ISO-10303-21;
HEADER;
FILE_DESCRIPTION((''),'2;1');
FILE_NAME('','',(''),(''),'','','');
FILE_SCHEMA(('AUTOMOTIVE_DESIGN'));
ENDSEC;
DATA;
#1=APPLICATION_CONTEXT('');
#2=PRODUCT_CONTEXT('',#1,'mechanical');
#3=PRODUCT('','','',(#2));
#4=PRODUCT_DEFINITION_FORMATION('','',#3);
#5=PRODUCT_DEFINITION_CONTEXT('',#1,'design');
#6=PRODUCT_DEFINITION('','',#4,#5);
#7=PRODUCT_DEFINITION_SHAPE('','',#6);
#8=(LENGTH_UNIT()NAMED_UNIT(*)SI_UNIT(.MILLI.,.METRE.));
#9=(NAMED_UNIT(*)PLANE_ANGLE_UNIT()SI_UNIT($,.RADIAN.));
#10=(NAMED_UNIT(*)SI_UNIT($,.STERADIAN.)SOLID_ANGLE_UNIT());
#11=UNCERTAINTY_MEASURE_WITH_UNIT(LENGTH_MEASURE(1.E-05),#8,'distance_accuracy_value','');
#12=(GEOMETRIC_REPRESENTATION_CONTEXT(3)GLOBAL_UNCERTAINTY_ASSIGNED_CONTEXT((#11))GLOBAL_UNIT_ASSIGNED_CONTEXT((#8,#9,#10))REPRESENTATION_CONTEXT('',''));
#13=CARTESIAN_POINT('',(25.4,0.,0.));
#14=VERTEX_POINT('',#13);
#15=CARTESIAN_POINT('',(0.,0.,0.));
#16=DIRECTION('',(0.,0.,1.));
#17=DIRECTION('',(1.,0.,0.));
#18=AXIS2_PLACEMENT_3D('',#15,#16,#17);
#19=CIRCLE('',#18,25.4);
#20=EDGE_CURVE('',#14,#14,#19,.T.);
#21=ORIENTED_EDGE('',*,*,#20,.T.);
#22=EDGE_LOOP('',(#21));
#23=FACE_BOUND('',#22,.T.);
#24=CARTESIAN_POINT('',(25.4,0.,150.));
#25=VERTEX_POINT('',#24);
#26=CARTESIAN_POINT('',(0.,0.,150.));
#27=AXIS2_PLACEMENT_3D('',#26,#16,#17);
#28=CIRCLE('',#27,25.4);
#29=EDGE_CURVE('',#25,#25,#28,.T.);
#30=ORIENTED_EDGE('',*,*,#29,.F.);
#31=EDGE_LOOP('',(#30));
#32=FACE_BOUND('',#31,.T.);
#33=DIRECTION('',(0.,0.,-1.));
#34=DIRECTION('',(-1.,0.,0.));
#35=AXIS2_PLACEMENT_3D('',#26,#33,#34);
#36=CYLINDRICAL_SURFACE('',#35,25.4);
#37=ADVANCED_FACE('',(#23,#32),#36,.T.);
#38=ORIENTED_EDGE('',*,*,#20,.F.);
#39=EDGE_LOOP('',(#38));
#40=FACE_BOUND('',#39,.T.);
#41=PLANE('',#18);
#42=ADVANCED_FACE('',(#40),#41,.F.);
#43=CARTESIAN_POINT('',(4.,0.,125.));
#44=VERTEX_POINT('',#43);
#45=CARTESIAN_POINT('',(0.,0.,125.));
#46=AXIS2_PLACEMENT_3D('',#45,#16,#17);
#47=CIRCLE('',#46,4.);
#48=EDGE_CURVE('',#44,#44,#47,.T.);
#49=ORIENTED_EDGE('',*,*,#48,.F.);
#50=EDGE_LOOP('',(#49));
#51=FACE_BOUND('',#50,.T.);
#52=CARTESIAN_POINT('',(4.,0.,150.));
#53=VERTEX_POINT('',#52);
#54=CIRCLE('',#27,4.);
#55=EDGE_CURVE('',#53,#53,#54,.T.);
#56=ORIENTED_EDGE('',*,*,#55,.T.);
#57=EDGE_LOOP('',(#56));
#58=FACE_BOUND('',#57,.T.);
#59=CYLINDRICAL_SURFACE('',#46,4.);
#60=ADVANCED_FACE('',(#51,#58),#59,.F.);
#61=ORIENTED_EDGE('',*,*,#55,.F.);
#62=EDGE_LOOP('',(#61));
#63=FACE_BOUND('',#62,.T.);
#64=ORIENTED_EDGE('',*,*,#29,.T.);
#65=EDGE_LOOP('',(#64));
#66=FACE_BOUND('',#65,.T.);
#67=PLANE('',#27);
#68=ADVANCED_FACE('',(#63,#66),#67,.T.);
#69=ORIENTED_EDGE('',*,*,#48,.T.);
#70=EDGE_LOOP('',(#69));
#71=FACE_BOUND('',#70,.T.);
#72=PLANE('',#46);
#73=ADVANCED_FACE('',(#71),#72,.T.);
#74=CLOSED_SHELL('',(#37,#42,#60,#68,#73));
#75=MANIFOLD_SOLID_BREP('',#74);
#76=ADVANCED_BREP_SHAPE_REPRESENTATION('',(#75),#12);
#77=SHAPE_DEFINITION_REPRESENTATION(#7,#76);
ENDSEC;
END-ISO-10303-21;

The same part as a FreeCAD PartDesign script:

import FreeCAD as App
import Part
import Sketcher
Q = App.Units.Quantity

doc = App.newDocument("Part")
body = doc.addObject("PartDesign::Body", "Body")

# Sketch on XY plane
sketch1 = body.newObject("Sketcher::SketchObject", "Sketch")
sketch1.AttachmentSupport = (doc.getObject("XY_Plane"), [""])
sketch1.MapMode = "FlatFace"
sketch1.addGeometry(Part.Circle(App.Vector(0, 0, 0), App.Vector(0, 0, 1), 25), False)
sketch1.addConstraint([
    Sketcher.Constraint("Coincident", 0, 3, -1, 1),
    Sketcher.Constraint("Diameter", 0, Q("50.8 mm")),
])
pad1 = body.newObject("PartDesign::Pad", "Pad")
pad1.Profile = sketch1
pad1.Length = 150

# Sketch on XY plane
sketch2 = body.newObject("Sketcher::SketchObject", "Sketch001")
sketch2.AttachmentSupport = (doc.getObject("XY_Plane"), [""])
sketch2.MapMode = "FlatFace"
sketch2.AttachmentOffset = App.Placement(App.Vector(0, 0, 150), App.Rotation())
sketch2.addGeometry(Part.Circle(App.Vector(0, 0, 0), App.Vector(0, 0, 1), 4), False)
sketch2.addConstraint([
    Sketcher.Constraint("Coincident", 0, 3, -1, 1),
    Sketcher.Constraint("Diameter", 0, Q("8 mm")),
])
pocket1 = body.newObject("PartDesign::Pocket", "Pocket")
pocket1.Profile = sketch2
pocket1.Length = 25

doc.recompute()
